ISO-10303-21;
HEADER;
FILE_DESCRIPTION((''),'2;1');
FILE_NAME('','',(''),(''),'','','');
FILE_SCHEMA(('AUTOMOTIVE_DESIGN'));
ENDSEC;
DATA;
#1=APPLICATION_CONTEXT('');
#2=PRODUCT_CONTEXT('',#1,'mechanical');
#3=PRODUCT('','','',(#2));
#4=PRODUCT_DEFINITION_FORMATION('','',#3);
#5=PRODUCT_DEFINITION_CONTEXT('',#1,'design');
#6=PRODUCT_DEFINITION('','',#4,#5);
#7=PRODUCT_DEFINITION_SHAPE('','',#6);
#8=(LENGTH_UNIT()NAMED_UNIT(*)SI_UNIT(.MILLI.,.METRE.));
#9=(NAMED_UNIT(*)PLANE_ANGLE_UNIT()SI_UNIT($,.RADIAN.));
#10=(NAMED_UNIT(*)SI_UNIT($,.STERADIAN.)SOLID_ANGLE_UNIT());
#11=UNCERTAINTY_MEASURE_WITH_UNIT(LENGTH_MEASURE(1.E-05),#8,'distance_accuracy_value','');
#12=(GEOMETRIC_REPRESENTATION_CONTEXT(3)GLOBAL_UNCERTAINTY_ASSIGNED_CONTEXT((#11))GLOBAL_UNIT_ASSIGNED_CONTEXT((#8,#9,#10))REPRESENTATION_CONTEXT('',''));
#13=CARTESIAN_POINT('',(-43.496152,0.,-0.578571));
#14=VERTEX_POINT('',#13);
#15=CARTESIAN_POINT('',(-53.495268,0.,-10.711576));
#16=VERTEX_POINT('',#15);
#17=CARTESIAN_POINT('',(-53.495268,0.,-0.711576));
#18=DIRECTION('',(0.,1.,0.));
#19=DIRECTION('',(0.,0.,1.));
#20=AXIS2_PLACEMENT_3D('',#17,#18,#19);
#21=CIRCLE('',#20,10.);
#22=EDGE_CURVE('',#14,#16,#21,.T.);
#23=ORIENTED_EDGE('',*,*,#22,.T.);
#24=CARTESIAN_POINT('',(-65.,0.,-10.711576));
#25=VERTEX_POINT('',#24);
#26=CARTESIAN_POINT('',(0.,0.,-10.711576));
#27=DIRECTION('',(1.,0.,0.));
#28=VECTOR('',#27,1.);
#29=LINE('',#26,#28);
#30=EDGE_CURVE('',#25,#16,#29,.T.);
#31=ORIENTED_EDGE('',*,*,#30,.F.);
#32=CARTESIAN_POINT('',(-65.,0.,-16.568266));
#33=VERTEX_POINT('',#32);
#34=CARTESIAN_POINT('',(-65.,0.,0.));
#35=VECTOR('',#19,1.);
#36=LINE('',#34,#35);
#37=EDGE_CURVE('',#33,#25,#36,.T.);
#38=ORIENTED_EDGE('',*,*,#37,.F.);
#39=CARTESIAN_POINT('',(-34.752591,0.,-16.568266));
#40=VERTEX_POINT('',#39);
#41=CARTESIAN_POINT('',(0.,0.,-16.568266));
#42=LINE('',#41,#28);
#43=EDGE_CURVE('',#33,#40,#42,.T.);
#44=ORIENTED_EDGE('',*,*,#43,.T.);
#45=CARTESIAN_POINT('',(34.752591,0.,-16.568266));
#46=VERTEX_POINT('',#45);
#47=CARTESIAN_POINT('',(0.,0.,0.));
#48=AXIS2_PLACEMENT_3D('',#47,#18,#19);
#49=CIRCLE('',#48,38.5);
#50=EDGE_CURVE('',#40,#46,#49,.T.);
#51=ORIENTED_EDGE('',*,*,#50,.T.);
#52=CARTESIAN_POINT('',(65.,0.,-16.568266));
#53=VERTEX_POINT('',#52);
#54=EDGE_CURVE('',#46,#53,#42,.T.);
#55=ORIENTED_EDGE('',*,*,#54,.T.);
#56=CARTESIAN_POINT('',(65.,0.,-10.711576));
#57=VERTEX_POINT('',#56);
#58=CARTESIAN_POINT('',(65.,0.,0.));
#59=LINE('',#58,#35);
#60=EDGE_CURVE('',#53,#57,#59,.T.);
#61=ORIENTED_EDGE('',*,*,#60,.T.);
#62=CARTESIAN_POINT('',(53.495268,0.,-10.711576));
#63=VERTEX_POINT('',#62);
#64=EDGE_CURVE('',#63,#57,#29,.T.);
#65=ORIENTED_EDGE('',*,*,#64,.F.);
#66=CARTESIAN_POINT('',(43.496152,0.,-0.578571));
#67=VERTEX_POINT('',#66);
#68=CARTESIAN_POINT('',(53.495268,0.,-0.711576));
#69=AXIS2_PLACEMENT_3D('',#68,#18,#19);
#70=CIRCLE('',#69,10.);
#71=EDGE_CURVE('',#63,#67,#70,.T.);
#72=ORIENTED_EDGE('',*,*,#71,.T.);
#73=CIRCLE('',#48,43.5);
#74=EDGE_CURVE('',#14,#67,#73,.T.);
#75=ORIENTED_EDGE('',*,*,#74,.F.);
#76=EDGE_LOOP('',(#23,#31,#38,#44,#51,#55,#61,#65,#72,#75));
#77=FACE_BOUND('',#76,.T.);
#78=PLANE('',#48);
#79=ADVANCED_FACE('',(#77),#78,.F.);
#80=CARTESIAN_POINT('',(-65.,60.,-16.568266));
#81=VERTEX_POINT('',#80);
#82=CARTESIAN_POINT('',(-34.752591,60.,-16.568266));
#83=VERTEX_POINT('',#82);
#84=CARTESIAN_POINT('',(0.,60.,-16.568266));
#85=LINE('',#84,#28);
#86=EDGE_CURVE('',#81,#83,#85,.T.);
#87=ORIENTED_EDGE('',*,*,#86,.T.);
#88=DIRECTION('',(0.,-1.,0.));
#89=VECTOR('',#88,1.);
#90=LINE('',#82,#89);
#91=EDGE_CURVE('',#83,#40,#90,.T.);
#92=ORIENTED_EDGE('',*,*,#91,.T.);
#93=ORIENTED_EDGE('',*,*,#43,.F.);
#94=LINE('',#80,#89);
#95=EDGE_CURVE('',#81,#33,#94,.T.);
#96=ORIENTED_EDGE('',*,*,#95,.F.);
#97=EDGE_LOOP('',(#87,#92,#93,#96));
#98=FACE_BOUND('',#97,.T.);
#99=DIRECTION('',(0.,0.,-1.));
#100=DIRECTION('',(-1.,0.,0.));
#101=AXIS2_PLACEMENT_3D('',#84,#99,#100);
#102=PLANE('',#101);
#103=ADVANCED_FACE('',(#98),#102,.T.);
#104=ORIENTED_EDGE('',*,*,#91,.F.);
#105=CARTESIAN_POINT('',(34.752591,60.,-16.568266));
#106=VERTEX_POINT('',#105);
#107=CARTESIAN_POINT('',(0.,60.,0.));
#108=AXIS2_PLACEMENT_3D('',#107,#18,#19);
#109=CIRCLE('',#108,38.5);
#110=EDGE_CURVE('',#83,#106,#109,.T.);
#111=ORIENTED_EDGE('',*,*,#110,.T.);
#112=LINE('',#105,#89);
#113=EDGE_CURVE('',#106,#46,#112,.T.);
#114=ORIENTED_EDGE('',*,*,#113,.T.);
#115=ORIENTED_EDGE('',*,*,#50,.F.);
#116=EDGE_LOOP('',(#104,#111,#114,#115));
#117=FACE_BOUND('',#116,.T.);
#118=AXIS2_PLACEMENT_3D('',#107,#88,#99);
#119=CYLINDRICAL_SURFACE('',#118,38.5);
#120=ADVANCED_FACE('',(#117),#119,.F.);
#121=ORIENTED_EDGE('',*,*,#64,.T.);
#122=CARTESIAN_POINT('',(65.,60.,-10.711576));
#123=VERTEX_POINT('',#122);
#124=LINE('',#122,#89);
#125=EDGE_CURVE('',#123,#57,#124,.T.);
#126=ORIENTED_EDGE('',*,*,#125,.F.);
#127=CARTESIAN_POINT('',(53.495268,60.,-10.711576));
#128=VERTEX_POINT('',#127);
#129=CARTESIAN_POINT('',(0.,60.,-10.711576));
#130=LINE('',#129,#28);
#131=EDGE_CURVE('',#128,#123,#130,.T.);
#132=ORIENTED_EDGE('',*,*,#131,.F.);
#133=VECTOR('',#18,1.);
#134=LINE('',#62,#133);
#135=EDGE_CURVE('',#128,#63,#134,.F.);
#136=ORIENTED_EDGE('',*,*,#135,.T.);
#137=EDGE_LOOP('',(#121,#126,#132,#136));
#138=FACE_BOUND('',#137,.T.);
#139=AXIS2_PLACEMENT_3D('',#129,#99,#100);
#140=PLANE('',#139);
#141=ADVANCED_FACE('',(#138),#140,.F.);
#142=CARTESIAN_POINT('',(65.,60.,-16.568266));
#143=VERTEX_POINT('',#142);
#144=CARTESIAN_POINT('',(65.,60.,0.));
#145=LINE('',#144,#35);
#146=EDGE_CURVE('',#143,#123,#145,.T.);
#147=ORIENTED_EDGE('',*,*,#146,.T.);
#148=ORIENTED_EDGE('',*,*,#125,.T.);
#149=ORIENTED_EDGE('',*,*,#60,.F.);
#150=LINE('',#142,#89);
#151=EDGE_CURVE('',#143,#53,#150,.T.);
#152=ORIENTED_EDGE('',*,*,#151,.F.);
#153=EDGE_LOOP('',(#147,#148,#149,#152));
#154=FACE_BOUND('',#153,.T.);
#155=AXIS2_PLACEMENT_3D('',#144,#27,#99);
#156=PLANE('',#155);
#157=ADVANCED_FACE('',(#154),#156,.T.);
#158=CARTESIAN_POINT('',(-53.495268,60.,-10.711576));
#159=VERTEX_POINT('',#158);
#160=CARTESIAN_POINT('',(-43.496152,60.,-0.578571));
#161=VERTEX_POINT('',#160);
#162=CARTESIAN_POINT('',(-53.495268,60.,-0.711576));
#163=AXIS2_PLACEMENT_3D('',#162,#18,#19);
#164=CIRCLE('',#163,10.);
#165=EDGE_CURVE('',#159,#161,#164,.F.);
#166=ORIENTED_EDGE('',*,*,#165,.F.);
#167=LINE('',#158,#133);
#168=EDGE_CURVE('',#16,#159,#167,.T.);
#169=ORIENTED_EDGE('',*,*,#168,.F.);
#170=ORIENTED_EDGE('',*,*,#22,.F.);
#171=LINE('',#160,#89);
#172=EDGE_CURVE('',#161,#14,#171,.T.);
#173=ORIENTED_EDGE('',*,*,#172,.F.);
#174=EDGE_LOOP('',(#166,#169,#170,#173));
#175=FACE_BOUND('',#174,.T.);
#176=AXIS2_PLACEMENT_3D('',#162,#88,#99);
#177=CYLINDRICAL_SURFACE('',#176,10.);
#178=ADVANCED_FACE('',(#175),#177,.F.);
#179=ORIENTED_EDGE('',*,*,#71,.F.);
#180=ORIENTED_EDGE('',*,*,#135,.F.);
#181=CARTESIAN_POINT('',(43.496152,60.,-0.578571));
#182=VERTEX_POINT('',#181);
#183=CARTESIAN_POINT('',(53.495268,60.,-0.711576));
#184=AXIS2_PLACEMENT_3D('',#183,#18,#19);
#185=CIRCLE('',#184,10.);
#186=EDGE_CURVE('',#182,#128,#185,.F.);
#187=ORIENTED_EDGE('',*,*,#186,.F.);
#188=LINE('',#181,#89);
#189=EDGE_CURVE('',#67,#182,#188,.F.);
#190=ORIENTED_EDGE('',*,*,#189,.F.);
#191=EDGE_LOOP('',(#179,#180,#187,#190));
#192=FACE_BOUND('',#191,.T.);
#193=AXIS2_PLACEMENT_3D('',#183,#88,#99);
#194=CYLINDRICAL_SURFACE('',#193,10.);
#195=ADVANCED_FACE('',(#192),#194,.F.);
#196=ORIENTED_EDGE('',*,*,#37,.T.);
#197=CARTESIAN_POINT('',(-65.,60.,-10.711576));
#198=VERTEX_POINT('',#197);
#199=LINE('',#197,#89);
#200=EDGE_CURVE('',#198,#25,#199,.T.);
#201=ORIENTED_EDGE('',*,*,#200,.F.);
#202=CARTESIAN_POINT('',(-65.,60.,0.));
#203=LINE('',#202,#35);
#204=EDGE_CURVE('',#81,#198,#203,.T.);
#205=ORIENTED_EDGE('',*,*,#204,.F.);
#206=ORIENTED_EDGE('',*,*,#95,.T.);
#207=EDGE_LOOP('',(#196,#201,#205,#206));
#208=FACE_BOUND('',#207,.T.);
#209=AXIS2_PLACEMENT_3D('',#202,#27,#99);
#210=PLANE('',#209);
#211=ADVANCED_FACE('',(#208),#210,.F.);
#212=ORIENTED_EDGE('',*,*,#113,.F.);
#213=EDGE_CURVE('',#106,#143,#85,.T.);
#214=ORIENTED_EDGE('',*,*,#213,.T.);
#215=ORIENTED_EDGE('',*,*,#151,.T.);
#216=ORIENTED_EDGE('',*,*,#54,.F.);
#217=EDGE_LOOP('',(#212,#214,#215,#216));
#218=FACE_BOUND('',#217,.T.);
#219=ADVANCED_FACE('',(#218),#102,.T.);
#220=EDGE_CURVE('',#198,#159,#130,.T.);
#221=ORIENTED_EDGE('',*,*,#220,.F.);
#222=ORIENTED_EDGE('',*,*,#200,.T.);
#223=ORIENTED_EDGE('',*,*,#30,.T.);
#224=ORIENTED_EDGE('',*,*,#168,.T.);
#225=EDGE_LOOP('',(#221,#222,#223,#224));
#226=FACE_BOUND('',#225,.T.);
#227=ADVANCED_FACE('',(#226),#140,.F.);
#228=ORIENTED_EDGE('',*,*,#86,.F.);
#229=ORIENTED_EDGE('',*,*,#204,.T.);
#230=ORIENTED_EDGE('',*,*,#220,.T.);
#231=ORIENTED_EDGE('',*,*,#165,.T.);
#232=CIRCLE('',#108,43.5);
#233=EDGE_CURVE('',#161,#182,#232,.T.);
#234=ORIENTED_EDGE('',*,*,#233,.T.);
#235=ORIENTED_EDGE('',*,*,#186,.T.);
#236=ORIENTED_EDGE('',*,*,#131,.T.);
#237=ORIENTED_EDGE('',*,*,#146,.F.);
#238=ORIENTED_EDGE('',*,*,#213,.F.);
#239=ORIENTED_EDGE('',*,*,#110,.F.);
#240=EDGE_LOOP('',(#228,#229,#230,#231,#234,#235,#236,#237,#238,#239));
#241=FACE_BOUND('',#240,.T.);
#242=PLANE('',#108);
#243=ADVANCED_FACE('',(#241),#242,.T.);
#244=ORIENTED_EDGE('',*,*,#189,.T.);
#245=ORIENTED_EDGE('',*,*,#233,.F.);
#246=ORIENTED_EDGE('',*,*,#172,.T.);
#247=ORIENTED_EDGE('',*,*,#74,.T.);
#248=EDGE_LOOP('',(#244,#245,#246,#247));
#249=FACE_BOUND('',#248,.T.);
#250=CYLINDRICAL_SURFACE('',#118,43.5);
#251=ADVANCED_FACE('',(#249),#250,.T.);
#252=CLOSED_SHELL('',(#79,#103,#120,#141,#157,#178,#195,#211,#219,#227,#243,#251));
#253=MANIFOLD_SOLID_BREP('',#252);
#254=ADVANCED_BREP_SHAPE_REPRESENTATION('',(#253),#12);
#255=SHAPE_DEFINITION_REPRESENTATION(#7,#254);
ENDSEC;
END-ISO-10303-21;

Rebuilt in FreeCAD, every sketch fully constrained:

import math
import FreeCAD as App
import Part
import Sketcher

V = App.Vector
Q = App.Units.Quantity


def edges_at(feature, points):
    """Names of the edges that pass closest to the given points."""
    edges = feature.Shape.Edges
    near = lambda p: min(range(len(edges)), key=lambda i: edges[i].distToShape(Part.Vertex(*p))[0])
    return sorted({f"Edge{near(p) + 1}" for p in points})

doc = App.newDocument("Part")
params = doc.addObject("Spreadsheet::Sheet", "Params")
for row, (alias, value) in enumerate([
    ("sketch1_radius", "43.5 mm"),
    ("sketch1_radius2", "38.5 mm"),
    ("pad1_length", "60 mm"),
    ("fillet_radius", "10 mm"),
], start=1):
    params.set(f"A{row}", alias)
    params.set(f"B{row}", "=" + value)
    params.setAlias(f"B{row}", alias)

body = doc.addObject("PartDesign::Body", "Body")

# Sketch on XZ plane
sketch1 = doc.addObject("Sketcher::SketchObject", "Sketch")
body.addObject(sketch1)
sketch1.AttachmentSupport = (doc.XZ_Plane, [""])
sketch1.MapMode = "FlatFace"
sketch1.addGeometry([
    Part.LineSegment(V(-65, -11, 0), V(-42, -11, 0)),  # 0
    Part.ArcOfCircle(Part.Circle(V(0, 0, 0), V(0, 0, 1), 44), math.radians(-14), math.radians(194)),  # 1
    Part.LineSegment(V(42, -11, 0), V(65, -11, 0)),  # 2
    Part.LineSegment(V(65, -11, 0), V(65, -17, 0)),  # 3
    Part.LineSegment(V(65, -17, 0), V(35, -17, 0)),  # 4
    Part.ArcOfCircle(Part.Circle(V(0, 0, 0), V(0, 0, 1), 38), math.radians(-25), math.radians(205)),  # 5
    Part.LineSegment(V(-35, -17, 0), V(-65, -17, 0)),  # 6
    Part.LineSegment(V(-65, -17, 0), V(-65, -11, 0)),  # 7
], False)
sketch1.addConstraint([
    Sketcher.Constraint("Coincident", 0, 2, 1, 2),
    Sketcher.Constraint("Coincident", 1, 1, 2, 1),
    Sketcher.Constraint("Coincident", 2, 2, 3, 1),
    Sketcher.Constraint("Coincident", 3, 2, 4, 1),
    Sketcher.Constraint("Coincident", 4, 2, 5, 1),
    Sketcher.Constraint("Coincident", 5, 2, 6, 1),
    Sketcher.Constraint("Coincident", 6, 2, 7, 1),
    Sketcher.Constraint("Coincident", 7, 2, 0, 1),
    Sketcher.Constraint("Horizontal", 0),
    Sketcher.Constraint("Horizontal", 2),
    Sketcher.Constraint("Vertical", 3),
    Sketcher.Constraint("Horizontal", 4),
    Sketcher.Constraint("Horizontal", 6),
    Sketcher.Constraint("Vertical", 7),
    Sketcher.Constraint("Coincident", 1, 3, -1, 1),
    Sketcher.Constraint("Coincident", 5, 3, -1, 1),
    Sketcher.Constraint("Symmetric", 3, 2, 6, 2, -2),
    Sketcher.Constraint("Horizontal", 0, 2, 1, 1),
    Sketcher.Constraint("Radius", 1, Q("43.5 mm")),
    Sketcher.Constraint("Radius", 5, Q("38.5 mm")),
    Sketcher.Constraint("DistanceX", -1, 1, 2, 2, Q("65 mm")),
    Sketcher.Constraint("DistanceX", 0, 1, 0, 2, Q("22.839448 mm")),
    Sketcher.Constraint("DistanceX", 4, 2, 4, 1, Q("30.247409 mm")),
])
sketch1.setExpression("Constraints[18]", "Params.sketch1_radius")
sketch1.setExpression("Constraints[19]", "Params.sketch1_radius2")
pad1 = doc.addObject("PartDesign::Pad", "Pad")
body.addObject(pad1)
pad1.Profile = sketch1
pad1.setExpression("Length", "Params.pad1_length")
pad1.Reversed = True
doc.recompute()

fillet = doc.addObject("PartDesign::Fillet", "Fillet")
body.addObject(fillet)
fillet.Base = (pad1, edges_at(pad1, [(42.161, 30, -10.712), (-42.161, 30, -10.712)]))
fillet.setExpression("Radius", "Params.fillet_radius")

doc.recompute()
